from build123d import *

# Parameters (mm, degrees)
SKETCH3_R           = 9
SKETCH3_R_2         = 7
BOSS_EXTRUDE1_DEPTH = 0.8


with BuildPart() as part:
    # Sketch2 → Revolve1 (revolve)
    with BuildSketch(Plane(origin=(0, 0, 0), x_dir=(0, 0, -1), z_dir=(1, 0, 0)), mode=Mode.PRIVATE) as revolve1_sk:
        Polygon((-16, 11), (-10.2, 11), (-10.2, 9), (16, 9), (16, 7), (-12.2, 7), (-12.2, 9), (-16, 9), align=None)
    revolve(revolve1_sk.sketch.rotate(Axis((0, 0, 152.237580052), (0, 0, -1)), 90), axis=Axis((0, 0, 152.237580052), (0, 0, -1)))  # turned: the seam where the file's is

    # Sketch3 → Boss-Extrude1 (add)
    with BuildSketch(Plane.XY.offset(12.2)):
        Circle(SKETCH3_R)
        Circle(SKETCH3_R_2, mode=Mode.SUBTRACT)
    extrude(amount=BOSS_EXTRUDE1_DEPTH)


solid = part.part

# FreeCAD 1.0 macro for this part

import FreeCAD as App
import Part
import Sketcher
Q = App.Units.Quantity


def add_polygon(sketch, points):
    """Adds a closed chain of lines whose ends are joined by coincident constraints."""
    first, n = sketch.GeometryCount, len(points)
    for a, b in zip(points, points[1:] + points[:1]):
        sketch.addGeometry(Part.LineSegment(App.Vector(*a, 0), App.Vector(*b, 0)), False)
    for i in range(n):
        sketch.addConstraint(Sketcher.Constraint("Coincident", first + i, 2, first + (i + 1) % n, 1))

doc = App.newDocument("Part")
params = doc.addObject("Spreadsheet::Sheet", "Params")
for row, (alias, value) in enumerate([
    ("sketch1_width", "2 mm"),
    ("sketch1_height", "5.8 mm"),
    ("sketch1_height2", "3.8 mm"),
    ("sketch1_height3", "28.2 mm"),
    ("revolution_angle", "360 deg"),
    ("sketch2_diameter", "18 mm"),
    ("sketch2_diameter2", "14 mm"),
    ("pad1_length", "0.8 mm"),
], start=1):
    params.set(f"A{row}", alias)
    params.set(f"B{row}", "=" + value)
    params.setAlias(f"B{row}", alias)

body = doc.addObject("PartDesign::Body", "Body")

# Sketch on YZ plane
sketch1 = body.newObject("Sketcher::SketchObject", "Sketch")
sketch1.AttachmentSupport = (doc.getObject("YZ_Plane"), [""])
sketch1.MapMode = "FlatFace"
add_polygon(sketch1, [(11, 10.2), (11, 16), (9, 16), (9, 12.2), (7, 12.2), (7, -16), (9, -16), (9, 10.2)])  # lines 0-7
sketch1.addConstraint([
    Sketcher.Constraint("Vertical", 0),
    Sketcher.Constraint("Horizontal", 1),
    Sketcher.Constraint("Vertical", 2),
    Sketcher.Constraint("Horizontal", 3),
    Sketcher.Constraint("Vertical", 4),
    Sketcher.Constraint("Horizontal", 5),
    Sketcher.Constraint("Vertical", 6),
    Sketcher.Constraint("Horizontal", 7),
    Sketcher.Constraint("Symmetric", 1, 2, 5, 2, -1),
    Sketcher.Constraint("Equal", 1, 3),
    Sketcher.Constraint("DistanceX", 1, 2, 1, 1, Q("2 mm")),
    Sketcher.Constraint("DistanceY", 0, 1, 0, 2, Q("5.8 mm")),
    Sketcher.Constraint("DistanceY", 2, 2, 2, 1, Q("3.8 mm")),
    Sketcher.Constraint("DistanceY", 4, 2, 4, 1, Q("28.2 mm")),
    Sketcher.Constraint("DistanceX", -1, 1, 0, 2, Q("11 mm")),
])
sketch1.setExpression("Constraints[18]", "Params.sketch1_width")
sketch1.setExpression("Constraints[19]", "Params.sketch1_height")
sketch1.setExpression("Constraints[20]", "Params.sketch1_height2")
sketch1.setExpression("Constraints[21]", "Params.sketch1_height3")
revolution = body.newObject("PartDesign::Revolution", "Revolution")
revolution.Profile = sketch1
revolution.ReferenceAxis = (sketch1, ["V_Axis"])
revolution.setExpression("Angle", "Params.revolution_angle")

# Sketch on XY plane
sketch2 = body.newObject("Sketcher::SketchObject", "Sketch001")
sketch2.AttachmentSupport = (doc.getObject("XY_Plane"), [""])
sketch2.MapMode = "FlatFace"
sketch2.AttachmentOffset = App.Placement(App.Vector(0, 0, 12.2), App.Rotation())
sketch2.addGeometry([
    Part.Circle(App.Vector(0, 0, 0), App.Vector(0, 0, 1), 9),
    Part.Circle(App.Vector(0, 0, 0), App.Vector(0, 0, 1), 7),
], False)
sketch2.addConstraint([
    Sketcher.Constraint("Coincident", 0, 3, -1, 1),
    Sketcher.Constraint("Coincident", 1, 3, -1, 1),
    Sketcher.Constraint("Diameter", 0, Q("18 mm")),
    Sketcher.Constraint("Diameter", 1, Q("14 mm")),
])
sketch2.setExpression("Constraints[2]", "Params.sketch2_diameter")
sketch2.setExpression("Constraints[3]", "Params.sketch2_diameter2")
pad1 = body.newObject("PartDesign::Pad", "Pad")
pad1.Profile = sketch2
pad1.setExpression("Length", "Params.pad1_length")

doc.recompute()
